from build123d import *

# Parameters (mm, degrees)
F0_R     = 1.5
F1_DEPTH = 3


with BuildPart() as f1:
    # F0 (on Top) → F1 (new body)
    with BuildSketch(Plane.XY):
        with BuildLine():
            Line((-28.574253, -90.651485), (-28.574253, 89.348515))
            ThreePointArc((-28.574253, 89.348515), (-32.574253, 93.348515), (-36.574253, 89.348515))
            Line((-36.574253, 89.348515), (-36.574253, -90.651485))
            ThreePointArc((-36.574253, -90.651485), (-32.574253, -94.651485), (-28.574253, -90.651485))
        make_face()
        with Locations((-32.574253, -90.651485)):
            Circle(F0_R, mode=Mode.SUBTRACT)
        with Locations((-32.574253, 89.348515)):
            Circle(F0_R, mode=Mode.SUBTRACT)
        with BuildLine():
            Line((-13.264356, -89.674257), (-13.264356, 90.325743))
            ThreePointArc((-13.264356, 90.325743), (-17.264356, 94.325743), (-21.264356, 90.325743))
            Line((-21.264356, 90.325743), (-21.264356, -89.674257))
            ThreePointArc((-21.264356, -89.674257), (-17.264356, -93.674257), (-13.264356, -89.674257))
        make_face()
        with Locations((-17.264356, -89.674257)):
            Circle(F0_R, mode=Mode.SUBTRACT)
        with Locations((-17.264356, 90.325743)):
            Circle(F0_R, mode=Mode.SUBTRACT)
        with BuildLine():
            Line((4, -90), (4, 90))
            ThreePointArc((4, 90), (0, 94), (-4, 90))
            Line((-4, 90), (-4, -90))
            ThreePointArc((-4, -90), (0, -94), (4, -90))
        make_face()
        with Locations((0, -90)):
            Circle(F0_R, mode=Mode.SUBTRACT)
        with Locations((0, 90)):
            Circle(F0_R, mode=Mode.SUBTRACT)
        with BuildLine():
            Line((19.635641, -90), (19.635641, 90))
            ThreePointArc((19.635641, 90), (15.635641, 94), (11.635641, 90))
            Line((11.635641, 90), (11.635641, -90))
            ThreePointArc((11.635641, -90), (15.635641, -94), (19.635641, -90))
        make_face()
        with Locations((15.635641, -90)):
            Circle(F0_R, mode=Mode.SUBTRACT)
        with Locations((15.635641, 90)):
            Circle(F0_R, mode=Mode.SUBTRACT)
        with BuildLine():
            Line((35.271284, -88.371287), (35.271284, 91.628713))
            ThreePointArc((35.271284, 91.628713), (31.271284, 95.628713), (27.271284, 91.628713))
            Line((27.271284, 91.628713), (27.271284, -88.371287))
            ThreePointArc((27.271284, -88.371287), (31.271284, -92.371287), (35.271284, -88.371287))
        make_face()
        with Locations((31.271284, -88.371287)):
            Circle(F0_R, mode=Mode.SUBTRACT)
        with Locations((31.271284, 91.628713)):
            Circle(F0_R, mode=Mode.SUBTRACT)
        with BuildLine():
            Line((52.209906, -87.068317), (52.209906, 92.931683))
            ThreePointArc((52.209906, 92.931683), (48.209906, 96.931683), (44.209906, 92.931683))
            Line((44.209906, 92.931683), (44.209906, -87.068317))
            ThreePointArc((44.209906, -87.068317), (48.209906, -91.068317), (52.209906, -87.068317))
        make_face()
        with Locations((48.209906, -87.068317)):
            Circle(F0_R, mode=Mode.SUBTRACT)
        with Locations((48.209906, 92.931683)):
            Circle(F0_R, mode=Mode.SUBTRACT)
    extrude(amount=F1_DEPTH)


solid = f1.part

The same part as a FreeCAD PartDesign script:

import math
import FreeCAD as App
import Part
import Sketcher
from FreeCAD import Vector
Q = App.Units.Quantity

doc = App.newDocument("Part")
body = doc.addObject("PartDesign::Body", "Body")
body.AllowCompound = True

# Sketch on XY plane
sketch1 = body.newObject("Sketcher::SketchObject", "Sketch")
sketch1.AttachmentSupport = (doc.getObject("XY_Plane"), [""])
sketch1.MapMode = "FlatFace"
sketch1.addGeometry(Part.LineSegment(Vector(-28.6, -90.7, 0), Vector(-28.6, 89.3, 0)), False)
sketch1.addGeometry(Part.ArcOfCircle(Part.Circle(Vector(-32.6, 89.3, 0), Vector(0, 0, 1), 4), math.radians(0), math.radians(180)), False)
sketch1.addGeometry(Part.LineSegment(Vector(-36.6, 89.3, 0), Vector(-36.6, -90.7, 0)), False)
sketch1.addGeometry(Part.ArcOfCircle(Part.Circle(Vector(-32.6, -90.7, 0), Vector(0, 0, 1), 4), math.radians(180), math.radians(360)), False)
sketch1.addGeometry(Part.Circle(Vector(-32.6, -90.7, 0), Vector(0, 0, 1), 1.5), False)
sketch1.addGeometry(Part.Circle(Vector(-32.6, 89.3, 0), Vector(0, 0, 1), 1.5), False)
sketch1.addGeometry(Part.LineSegment(Vector(-13.3, -89.7, 0), Vector(-13.3, 90.3, 0)), False)
sketch1.addGeometry(Part.ArcOfCircle(Part.Circle(Vector(-17.3, 90.3, 0), Vector(0, 0, 1), 4), math.radians(0), math.radians(180)), False)
sketch1.addGeometry(Part.LineSegment(Vector(-21.3, 90.3, 0), Vector(-21.3, -89.7, 0)), False)
sketch1.addGeometry(Part.ArcOfCircle(Part.Circle(Vector(-17.3, -89.7, 0), Vector(0, 0, 1), 4), math.radians(180), math.radians(360)), False)
sketch1.addGeometry(Part.Circle(Vector(-17.3, -89.7, 0), Vector(0, 0, 1), 1.5), False)
sketch1.addGeometry(Part.Circle(Vector(-17.3, 90.3, 0), Vector(0, 0, 1), 1.5), False)
sketch1.addGeometry(Part.LineSegment(Vector(4, -90, 0), Vector(4, 90, 0)), False)
sketch1.addGeometry(Part.ArcOfCircle(Part.Circle(Vector(0, 90, 0), Vector(0, 0, 1), 4), math.radians(0), math.radians(180)), False)
sketch1.addGeometry(Part.LineSegment(Vector(-4, 90, 0), Vector(-4, -90, 0)), False)
sketch1.addGeometry(Part.ArcOfCircle(Part.Circle(Vector(0, -90, 0), Vector(0, 0, 1), 4), math.radians(180), math.radians(360)), False)
sketch1.addGeometry(Part.Circle(Vector(0, -90, 0), Vector(0, 0, 1), 1.5), False)
sketch1.addGeometry(Part.Circle(Vector(0, 90, 0), Vector(0, 0, 1), 1.5), False)
sketch1.addGeometry(Part.LineSegment(Vector(19.6, -90, 0), Vector(19.6, 90, 0)), False)
sketch1.addGeometry(Part.ArcOfCircle(Part.Circle(Vector(15.6, 90, 0), Vector(0, 0, 1), 4), math.radians(0), math.radians(180)), False)
sketch1.addGeometry(Part.LineSegment(Vector(11.6, 90, 0), Vector(11.6, -90, 0)), False)
sketch1.addGeometry(Part.ArcOfCircle(Part.Circle(Vector(15.6, -90, 0), Vector(0, 0, 1), 4), math.radians(180), math.radians(360)), False)
sketch1.addGeometry(Part.Circle(Vector(15.6, -90, 0), Vector(0, 0, 1), 1.5), False)
sketch1.addGeometry(Part.Circle(Vector(15.6, 90, 0), Vector(0, 0, 1), 1.5), False)
sketch1.addGeometry(Part.LineSegment(Vector(35.3, -88.4, 0), Vector(35.3, 91.6, 0)), False)
sketch1.addGeometry(Part.ArcOfCircle(Part.Circle(Vector(31.3, 91.6, 0), Vector(0, 0, 1), 4), math.radians(0), math.radians(180)), False)
sketch1.addGeometry(Part.LineSegment(Vector(27.3, 91.6, 0), Vector(27.3, -88.4, 0)), False)
sketch1.addGeometry(Part.ArcOfCircle(Part.Circle(Vector(31.3, -88.4, 0), Vector(0, 0, 1), 4), math.radians(180), math.radians(360)), False)
sketch1.addGeometry(Part.Circle(Vector(31.3, -88.4, 0), Vector(0, 0, 1), 1.5), False)
sketch1.addGeometry(Part.Circle(Vector(31.3, 91.6, 0), Vector(0, 0, 1), 1.5), False)
sketch1.addGeometry(Part.LineSegment(Vector(52.2, -87.1, 0), Vector(52.2, 92.9, 0)), False)
sketch1.addGeometry(Part.ArcOfCircle(Part.Circle(Vector(48.2, 92.9, 0), Vector(0, 0, 1), 4), math.radians(0), math.radians(180)), False)
sketch1.addGeometry(Part.LineSegment(Vector(44.2, 92.9, 0), Vector(44.2, -87.1, 0)), False)
sketch1.addGeometry(Part.ArcOfCircle(Part.Circle(Vector(48.2, -87.1, 0), Vector(0, 0, 1), 4), math.radians(180), math.radians(360)), False)
sketch1.addGeometry(Part.Circle(Vector(48.2, -87.1, 0), Vector(0, 0, 1), 1.5), False)
sketch1.addGeometry(Part.Circle(Vector(48.2, 92.9, 0), Vector(0, 0, 1), 1.5), False)
sketch1.addConstraint(Sketcher.Constraint("Tangent", 0, 2, 1, 1))
sketch1.addConstraint(Sketcher.Constraint("Tangent", 1, 2, 2, 1))
sketch1.addConstraint(Sketcher.Constraint("Tangent", 2, 2, 3, 1))
sketch1.addConstraint(Sketcher.Constraint("Tangent", 3, 2, 0, 1))
sketch1.addConstraint(Sketcher.Constraint("Tangent", 6, 2, 7, 1))
sketch1.addConstraint(Sketcher.Constraint("Tangent", 7, 2, 8, 1))
sketch1.addConstraint(Sketcher.Constraint("Tangent", 8, 2, 9, 1))
sketch1.addConstraint(Sketcher.Constraint("Tangent", 9, 2, 6, 1))
sketch1.addConstraint(Sketcher.Constraint("Tangent", 12, 2, 13, 1))
sketch1.addConstraint(Sketcher.Constraint("Tangent", 13, 2, 14, 1))
sketch1.addConstraint(Sketcher.Constraint("Tangent", 14, 2, 15, 1))
sketch1.addConstraint(Sketcher.Constraint("Tangent", 15, 2, 12, 1))
sketch1.addConstraint(Sketcher.Constraint("Tangent", 18, 2, 19, 1))
sketch1.addConstraint(Sketcher.Constraint("Tangent", 19, 2, 20, 1))
sketch1.addConstraint(Sketcher.Constraint("Tangent", 20, 2, 21, 1))
sketch1.addConstraint(Sketcher.Constraint("Tangent", 21, 2, 18, 1))
sketch1.addConstraint(Sketcher.Constraint("Tangent", 24, 2, 25, 1))
sketch1.addConstraint(Sketcher.Constraint("Tangent", 25, 2, 26, 1))
sketch1.addConstraint(Sketcher.Constraint("Tangent", 26, 2, 27, 1))
sketch1.addConstraint(Sketcher.Constraint("Tangent", 27, 2, 24, 1))
sketch1.addConstraint(Sketcher.Constraint("Tangent", 30, 2, 31, 1))
sketch1.addConstraint(Sketcher.Constraint("Tangent", 31, 2, 32, 1))
sketch1.addConstraint(Sketcher.Constraint("Tangent", 32, 2, 33, 1))
sketch1.addConstraint(Sketcher.Constraint("Tangent", 33, 2, 30, 1))
sketch1.addConstraint(Sketcher.Constraint("Vertical", 0))
sketch1.addConstraint(Sketcher.Constraint("Vertical", 2))
sketch1.addConstraint(Sketcher.Constraint("Vertical", 6))
sketch1.addConstraint(Sketcher.Constraint("Vertical", 8))
sketch1.addConstraint(Sketcher.Constraint("Vertical", 12))
sketch1.addConstraint(Sketcher.Constraint("Vertical", 14))
sketch1.addConstraint(Sketcher.Constraint("Vertical", 18))
sketch1.addConstraint(Sketcher.Constraint("Vertical", 20))
sketch1.addConstraint(Sketcher.Constraint("Vertical", 24))
sketch1.addConstraint(Sketcher.Constraint("Vertical", 26))
sketch1.addConstraint(Sketcher.Constraint("Vertical", 30))
sketch1.addConstraint(Sketcher.Constraint("Vertical", 32))
sketch1.addConstraint(Sketcher.Constraint("Coincident", 4, 3, 3, 3))
sketch1.addConstraint(Sketcher.Constraint("Coincident", 5, 3, 1, 3))
sketch1.addConstraint(Sketcher.Constraint("Coincident", 10, 3, 9, 3))
sketch1.addConstraint(Sketcher.Constraint("Coincident", 11, 3, 7, 3))
sketch1.addConstraint(Sketcher.Constraint("Coincident", 16, 3, 15, 3))
sketch1.addConstraint(Sketcher.Constraint("Coincident", 17, 3, 13, 3))
sketch1.addConstraint(Sketcher.Constraint("Coincident", 22, 3, 21, 3))
sketch1.addConstraint(Sketcher.Constraint("Coincident", 23, 3, 19, 3))
sketch1.addConstraint(Sketcher.Constraint("Coincident", 28, 3, 27, 3))
sketch1.addConstraint(Sketcher.Constraint("Coincident", 29, 3, 25, 3))
sketch1.addConstraint(Sketcher.Constraint("Coincident", 34, 3, 33, 3))
sketch1.addConstraint(Sketcher.Constraint("Coincident", 35, 3, 31, 3))
sketch1.addConstraint(Sketcher.Constraint("Equal", 4, 5))
sketch1.addConstraint(Sketcher.Constraint("Equal", 3, 7))
sketch1.addConstraint(Sketcher.Constraint("Equal", 5, 10))
sketch1.addConstraint(Sketcher.Constraint("Equal", 10, 11))
sketch1.addConstraint(Sketcher.Constraint("Equal", 9, 13))
sketch1.addConstraint(Sketcher.Constraint("Equal", 11, 16))
sketch1.addConstraint(Sketcher.Constraint("Equal", 16, 17))
sketch1.addConstraint(Sketcher.Constraint("Equal", 15, 19))
sketch1.addConstraint(Sketcher.Constraint("Equal", 17, 22))
sketch1.addConstraint(Sketcher.Constraint("Equal", 22, 23))
sketch1.addConstraint(Sketcher.Constraint("Equal", 21, 25))
sketch1.addConstraint(Sketcher.Constraint("Equal", 23, 28))
sketch1.addConstraint(Sketcher.Constraint("Equal", 28, 29))
sketch1.addConstraint(Sketcher.Constraint("Equal", 27, 31))
sketch1.addConstraint(Sketcher.Constraint("Equal", 29, 34))
sketch1.addConstraint(Sketcher.Constraint("Equal", 34, 35))
sketch1.addConstraint(Sketcher.Constraint("Symmetric", 13, 3, 15, 3, -1, 1))
sketch1.addConstraint(Sketcher.Constraint("Horizontal", 17, 3, 19, 3))
sketch1.addConstraint(Sketcher.Constraint("Horizontal", 16, 3, 21, 3))
sketch1.addConstraint(Sketcher.Constraint("Equal", 2, 6))
sketch1.addConstraint(Sketcher.Constraint("Equal", 8, 12))
sketch1.addConstraint(Sketcher.Constraint("Equal", 20, 24))
sketch1.addConstraint(Sketcher.Constraint("Equal", 26, 30))
sketch1.addConstraint(Sketcher.Constraint("Diameter", 4, Q("3 mm")))
sketch1.addConstraint(Sketcher.Constraint("Radius", 1, Q("4 mm")))
sketch1.addConstraint(Sketcher.Constraint("DistanceY", 0, 1, 0, 2, Q("180 mm")))
sketch1.addConstraint(Sketcher.Constraint("DistanceX", -1, 1, 19, 3, Q("15.635641 mm")))
sketch1.addConstraint(Sketcher.Constraint("DistanceY", 3, 3, 7, 3, Q("180.977228 mm")))
sketch1.addConstraint(Sketcher.Constraint("DistanceX", 7, 3, 25, 3, Q("48.53564 mm")))
sketch1.addConstraint(Sketcher.Constraint("DistanceY", 7, 3, 25, 3, Q("1.30297 mm")))
sketch1.addConstraint(Sketcher.Constraint("DistanceX", 25, 3, 31, 3, Q("16.938622 mm")))
sketch1.addConstraint(Sketcher.Constraint("DistanceY", 25, 3, 31, 3, Q("1.30297 mm")))
sketch1.addConstraint(Sketcher.Constraint("DistanceX", 1, 3, -1, 1, Q("32.574253 mm")))
sketch1.addConstraint(Sketcher.Constraint("DistanceY", -1, 1, 1, 3, Q("89.348515 mm")))
sketch1.addConstraint(Sketcher.Constraint("DistanceX", 7, 3, -1, 1, Q("17.264356 mm")))
pad1 = body.newObject("PartDesign::Pad", "Pad")
pad1.Profile = sketch1
pad1.Length = 3

doc.recompute()
